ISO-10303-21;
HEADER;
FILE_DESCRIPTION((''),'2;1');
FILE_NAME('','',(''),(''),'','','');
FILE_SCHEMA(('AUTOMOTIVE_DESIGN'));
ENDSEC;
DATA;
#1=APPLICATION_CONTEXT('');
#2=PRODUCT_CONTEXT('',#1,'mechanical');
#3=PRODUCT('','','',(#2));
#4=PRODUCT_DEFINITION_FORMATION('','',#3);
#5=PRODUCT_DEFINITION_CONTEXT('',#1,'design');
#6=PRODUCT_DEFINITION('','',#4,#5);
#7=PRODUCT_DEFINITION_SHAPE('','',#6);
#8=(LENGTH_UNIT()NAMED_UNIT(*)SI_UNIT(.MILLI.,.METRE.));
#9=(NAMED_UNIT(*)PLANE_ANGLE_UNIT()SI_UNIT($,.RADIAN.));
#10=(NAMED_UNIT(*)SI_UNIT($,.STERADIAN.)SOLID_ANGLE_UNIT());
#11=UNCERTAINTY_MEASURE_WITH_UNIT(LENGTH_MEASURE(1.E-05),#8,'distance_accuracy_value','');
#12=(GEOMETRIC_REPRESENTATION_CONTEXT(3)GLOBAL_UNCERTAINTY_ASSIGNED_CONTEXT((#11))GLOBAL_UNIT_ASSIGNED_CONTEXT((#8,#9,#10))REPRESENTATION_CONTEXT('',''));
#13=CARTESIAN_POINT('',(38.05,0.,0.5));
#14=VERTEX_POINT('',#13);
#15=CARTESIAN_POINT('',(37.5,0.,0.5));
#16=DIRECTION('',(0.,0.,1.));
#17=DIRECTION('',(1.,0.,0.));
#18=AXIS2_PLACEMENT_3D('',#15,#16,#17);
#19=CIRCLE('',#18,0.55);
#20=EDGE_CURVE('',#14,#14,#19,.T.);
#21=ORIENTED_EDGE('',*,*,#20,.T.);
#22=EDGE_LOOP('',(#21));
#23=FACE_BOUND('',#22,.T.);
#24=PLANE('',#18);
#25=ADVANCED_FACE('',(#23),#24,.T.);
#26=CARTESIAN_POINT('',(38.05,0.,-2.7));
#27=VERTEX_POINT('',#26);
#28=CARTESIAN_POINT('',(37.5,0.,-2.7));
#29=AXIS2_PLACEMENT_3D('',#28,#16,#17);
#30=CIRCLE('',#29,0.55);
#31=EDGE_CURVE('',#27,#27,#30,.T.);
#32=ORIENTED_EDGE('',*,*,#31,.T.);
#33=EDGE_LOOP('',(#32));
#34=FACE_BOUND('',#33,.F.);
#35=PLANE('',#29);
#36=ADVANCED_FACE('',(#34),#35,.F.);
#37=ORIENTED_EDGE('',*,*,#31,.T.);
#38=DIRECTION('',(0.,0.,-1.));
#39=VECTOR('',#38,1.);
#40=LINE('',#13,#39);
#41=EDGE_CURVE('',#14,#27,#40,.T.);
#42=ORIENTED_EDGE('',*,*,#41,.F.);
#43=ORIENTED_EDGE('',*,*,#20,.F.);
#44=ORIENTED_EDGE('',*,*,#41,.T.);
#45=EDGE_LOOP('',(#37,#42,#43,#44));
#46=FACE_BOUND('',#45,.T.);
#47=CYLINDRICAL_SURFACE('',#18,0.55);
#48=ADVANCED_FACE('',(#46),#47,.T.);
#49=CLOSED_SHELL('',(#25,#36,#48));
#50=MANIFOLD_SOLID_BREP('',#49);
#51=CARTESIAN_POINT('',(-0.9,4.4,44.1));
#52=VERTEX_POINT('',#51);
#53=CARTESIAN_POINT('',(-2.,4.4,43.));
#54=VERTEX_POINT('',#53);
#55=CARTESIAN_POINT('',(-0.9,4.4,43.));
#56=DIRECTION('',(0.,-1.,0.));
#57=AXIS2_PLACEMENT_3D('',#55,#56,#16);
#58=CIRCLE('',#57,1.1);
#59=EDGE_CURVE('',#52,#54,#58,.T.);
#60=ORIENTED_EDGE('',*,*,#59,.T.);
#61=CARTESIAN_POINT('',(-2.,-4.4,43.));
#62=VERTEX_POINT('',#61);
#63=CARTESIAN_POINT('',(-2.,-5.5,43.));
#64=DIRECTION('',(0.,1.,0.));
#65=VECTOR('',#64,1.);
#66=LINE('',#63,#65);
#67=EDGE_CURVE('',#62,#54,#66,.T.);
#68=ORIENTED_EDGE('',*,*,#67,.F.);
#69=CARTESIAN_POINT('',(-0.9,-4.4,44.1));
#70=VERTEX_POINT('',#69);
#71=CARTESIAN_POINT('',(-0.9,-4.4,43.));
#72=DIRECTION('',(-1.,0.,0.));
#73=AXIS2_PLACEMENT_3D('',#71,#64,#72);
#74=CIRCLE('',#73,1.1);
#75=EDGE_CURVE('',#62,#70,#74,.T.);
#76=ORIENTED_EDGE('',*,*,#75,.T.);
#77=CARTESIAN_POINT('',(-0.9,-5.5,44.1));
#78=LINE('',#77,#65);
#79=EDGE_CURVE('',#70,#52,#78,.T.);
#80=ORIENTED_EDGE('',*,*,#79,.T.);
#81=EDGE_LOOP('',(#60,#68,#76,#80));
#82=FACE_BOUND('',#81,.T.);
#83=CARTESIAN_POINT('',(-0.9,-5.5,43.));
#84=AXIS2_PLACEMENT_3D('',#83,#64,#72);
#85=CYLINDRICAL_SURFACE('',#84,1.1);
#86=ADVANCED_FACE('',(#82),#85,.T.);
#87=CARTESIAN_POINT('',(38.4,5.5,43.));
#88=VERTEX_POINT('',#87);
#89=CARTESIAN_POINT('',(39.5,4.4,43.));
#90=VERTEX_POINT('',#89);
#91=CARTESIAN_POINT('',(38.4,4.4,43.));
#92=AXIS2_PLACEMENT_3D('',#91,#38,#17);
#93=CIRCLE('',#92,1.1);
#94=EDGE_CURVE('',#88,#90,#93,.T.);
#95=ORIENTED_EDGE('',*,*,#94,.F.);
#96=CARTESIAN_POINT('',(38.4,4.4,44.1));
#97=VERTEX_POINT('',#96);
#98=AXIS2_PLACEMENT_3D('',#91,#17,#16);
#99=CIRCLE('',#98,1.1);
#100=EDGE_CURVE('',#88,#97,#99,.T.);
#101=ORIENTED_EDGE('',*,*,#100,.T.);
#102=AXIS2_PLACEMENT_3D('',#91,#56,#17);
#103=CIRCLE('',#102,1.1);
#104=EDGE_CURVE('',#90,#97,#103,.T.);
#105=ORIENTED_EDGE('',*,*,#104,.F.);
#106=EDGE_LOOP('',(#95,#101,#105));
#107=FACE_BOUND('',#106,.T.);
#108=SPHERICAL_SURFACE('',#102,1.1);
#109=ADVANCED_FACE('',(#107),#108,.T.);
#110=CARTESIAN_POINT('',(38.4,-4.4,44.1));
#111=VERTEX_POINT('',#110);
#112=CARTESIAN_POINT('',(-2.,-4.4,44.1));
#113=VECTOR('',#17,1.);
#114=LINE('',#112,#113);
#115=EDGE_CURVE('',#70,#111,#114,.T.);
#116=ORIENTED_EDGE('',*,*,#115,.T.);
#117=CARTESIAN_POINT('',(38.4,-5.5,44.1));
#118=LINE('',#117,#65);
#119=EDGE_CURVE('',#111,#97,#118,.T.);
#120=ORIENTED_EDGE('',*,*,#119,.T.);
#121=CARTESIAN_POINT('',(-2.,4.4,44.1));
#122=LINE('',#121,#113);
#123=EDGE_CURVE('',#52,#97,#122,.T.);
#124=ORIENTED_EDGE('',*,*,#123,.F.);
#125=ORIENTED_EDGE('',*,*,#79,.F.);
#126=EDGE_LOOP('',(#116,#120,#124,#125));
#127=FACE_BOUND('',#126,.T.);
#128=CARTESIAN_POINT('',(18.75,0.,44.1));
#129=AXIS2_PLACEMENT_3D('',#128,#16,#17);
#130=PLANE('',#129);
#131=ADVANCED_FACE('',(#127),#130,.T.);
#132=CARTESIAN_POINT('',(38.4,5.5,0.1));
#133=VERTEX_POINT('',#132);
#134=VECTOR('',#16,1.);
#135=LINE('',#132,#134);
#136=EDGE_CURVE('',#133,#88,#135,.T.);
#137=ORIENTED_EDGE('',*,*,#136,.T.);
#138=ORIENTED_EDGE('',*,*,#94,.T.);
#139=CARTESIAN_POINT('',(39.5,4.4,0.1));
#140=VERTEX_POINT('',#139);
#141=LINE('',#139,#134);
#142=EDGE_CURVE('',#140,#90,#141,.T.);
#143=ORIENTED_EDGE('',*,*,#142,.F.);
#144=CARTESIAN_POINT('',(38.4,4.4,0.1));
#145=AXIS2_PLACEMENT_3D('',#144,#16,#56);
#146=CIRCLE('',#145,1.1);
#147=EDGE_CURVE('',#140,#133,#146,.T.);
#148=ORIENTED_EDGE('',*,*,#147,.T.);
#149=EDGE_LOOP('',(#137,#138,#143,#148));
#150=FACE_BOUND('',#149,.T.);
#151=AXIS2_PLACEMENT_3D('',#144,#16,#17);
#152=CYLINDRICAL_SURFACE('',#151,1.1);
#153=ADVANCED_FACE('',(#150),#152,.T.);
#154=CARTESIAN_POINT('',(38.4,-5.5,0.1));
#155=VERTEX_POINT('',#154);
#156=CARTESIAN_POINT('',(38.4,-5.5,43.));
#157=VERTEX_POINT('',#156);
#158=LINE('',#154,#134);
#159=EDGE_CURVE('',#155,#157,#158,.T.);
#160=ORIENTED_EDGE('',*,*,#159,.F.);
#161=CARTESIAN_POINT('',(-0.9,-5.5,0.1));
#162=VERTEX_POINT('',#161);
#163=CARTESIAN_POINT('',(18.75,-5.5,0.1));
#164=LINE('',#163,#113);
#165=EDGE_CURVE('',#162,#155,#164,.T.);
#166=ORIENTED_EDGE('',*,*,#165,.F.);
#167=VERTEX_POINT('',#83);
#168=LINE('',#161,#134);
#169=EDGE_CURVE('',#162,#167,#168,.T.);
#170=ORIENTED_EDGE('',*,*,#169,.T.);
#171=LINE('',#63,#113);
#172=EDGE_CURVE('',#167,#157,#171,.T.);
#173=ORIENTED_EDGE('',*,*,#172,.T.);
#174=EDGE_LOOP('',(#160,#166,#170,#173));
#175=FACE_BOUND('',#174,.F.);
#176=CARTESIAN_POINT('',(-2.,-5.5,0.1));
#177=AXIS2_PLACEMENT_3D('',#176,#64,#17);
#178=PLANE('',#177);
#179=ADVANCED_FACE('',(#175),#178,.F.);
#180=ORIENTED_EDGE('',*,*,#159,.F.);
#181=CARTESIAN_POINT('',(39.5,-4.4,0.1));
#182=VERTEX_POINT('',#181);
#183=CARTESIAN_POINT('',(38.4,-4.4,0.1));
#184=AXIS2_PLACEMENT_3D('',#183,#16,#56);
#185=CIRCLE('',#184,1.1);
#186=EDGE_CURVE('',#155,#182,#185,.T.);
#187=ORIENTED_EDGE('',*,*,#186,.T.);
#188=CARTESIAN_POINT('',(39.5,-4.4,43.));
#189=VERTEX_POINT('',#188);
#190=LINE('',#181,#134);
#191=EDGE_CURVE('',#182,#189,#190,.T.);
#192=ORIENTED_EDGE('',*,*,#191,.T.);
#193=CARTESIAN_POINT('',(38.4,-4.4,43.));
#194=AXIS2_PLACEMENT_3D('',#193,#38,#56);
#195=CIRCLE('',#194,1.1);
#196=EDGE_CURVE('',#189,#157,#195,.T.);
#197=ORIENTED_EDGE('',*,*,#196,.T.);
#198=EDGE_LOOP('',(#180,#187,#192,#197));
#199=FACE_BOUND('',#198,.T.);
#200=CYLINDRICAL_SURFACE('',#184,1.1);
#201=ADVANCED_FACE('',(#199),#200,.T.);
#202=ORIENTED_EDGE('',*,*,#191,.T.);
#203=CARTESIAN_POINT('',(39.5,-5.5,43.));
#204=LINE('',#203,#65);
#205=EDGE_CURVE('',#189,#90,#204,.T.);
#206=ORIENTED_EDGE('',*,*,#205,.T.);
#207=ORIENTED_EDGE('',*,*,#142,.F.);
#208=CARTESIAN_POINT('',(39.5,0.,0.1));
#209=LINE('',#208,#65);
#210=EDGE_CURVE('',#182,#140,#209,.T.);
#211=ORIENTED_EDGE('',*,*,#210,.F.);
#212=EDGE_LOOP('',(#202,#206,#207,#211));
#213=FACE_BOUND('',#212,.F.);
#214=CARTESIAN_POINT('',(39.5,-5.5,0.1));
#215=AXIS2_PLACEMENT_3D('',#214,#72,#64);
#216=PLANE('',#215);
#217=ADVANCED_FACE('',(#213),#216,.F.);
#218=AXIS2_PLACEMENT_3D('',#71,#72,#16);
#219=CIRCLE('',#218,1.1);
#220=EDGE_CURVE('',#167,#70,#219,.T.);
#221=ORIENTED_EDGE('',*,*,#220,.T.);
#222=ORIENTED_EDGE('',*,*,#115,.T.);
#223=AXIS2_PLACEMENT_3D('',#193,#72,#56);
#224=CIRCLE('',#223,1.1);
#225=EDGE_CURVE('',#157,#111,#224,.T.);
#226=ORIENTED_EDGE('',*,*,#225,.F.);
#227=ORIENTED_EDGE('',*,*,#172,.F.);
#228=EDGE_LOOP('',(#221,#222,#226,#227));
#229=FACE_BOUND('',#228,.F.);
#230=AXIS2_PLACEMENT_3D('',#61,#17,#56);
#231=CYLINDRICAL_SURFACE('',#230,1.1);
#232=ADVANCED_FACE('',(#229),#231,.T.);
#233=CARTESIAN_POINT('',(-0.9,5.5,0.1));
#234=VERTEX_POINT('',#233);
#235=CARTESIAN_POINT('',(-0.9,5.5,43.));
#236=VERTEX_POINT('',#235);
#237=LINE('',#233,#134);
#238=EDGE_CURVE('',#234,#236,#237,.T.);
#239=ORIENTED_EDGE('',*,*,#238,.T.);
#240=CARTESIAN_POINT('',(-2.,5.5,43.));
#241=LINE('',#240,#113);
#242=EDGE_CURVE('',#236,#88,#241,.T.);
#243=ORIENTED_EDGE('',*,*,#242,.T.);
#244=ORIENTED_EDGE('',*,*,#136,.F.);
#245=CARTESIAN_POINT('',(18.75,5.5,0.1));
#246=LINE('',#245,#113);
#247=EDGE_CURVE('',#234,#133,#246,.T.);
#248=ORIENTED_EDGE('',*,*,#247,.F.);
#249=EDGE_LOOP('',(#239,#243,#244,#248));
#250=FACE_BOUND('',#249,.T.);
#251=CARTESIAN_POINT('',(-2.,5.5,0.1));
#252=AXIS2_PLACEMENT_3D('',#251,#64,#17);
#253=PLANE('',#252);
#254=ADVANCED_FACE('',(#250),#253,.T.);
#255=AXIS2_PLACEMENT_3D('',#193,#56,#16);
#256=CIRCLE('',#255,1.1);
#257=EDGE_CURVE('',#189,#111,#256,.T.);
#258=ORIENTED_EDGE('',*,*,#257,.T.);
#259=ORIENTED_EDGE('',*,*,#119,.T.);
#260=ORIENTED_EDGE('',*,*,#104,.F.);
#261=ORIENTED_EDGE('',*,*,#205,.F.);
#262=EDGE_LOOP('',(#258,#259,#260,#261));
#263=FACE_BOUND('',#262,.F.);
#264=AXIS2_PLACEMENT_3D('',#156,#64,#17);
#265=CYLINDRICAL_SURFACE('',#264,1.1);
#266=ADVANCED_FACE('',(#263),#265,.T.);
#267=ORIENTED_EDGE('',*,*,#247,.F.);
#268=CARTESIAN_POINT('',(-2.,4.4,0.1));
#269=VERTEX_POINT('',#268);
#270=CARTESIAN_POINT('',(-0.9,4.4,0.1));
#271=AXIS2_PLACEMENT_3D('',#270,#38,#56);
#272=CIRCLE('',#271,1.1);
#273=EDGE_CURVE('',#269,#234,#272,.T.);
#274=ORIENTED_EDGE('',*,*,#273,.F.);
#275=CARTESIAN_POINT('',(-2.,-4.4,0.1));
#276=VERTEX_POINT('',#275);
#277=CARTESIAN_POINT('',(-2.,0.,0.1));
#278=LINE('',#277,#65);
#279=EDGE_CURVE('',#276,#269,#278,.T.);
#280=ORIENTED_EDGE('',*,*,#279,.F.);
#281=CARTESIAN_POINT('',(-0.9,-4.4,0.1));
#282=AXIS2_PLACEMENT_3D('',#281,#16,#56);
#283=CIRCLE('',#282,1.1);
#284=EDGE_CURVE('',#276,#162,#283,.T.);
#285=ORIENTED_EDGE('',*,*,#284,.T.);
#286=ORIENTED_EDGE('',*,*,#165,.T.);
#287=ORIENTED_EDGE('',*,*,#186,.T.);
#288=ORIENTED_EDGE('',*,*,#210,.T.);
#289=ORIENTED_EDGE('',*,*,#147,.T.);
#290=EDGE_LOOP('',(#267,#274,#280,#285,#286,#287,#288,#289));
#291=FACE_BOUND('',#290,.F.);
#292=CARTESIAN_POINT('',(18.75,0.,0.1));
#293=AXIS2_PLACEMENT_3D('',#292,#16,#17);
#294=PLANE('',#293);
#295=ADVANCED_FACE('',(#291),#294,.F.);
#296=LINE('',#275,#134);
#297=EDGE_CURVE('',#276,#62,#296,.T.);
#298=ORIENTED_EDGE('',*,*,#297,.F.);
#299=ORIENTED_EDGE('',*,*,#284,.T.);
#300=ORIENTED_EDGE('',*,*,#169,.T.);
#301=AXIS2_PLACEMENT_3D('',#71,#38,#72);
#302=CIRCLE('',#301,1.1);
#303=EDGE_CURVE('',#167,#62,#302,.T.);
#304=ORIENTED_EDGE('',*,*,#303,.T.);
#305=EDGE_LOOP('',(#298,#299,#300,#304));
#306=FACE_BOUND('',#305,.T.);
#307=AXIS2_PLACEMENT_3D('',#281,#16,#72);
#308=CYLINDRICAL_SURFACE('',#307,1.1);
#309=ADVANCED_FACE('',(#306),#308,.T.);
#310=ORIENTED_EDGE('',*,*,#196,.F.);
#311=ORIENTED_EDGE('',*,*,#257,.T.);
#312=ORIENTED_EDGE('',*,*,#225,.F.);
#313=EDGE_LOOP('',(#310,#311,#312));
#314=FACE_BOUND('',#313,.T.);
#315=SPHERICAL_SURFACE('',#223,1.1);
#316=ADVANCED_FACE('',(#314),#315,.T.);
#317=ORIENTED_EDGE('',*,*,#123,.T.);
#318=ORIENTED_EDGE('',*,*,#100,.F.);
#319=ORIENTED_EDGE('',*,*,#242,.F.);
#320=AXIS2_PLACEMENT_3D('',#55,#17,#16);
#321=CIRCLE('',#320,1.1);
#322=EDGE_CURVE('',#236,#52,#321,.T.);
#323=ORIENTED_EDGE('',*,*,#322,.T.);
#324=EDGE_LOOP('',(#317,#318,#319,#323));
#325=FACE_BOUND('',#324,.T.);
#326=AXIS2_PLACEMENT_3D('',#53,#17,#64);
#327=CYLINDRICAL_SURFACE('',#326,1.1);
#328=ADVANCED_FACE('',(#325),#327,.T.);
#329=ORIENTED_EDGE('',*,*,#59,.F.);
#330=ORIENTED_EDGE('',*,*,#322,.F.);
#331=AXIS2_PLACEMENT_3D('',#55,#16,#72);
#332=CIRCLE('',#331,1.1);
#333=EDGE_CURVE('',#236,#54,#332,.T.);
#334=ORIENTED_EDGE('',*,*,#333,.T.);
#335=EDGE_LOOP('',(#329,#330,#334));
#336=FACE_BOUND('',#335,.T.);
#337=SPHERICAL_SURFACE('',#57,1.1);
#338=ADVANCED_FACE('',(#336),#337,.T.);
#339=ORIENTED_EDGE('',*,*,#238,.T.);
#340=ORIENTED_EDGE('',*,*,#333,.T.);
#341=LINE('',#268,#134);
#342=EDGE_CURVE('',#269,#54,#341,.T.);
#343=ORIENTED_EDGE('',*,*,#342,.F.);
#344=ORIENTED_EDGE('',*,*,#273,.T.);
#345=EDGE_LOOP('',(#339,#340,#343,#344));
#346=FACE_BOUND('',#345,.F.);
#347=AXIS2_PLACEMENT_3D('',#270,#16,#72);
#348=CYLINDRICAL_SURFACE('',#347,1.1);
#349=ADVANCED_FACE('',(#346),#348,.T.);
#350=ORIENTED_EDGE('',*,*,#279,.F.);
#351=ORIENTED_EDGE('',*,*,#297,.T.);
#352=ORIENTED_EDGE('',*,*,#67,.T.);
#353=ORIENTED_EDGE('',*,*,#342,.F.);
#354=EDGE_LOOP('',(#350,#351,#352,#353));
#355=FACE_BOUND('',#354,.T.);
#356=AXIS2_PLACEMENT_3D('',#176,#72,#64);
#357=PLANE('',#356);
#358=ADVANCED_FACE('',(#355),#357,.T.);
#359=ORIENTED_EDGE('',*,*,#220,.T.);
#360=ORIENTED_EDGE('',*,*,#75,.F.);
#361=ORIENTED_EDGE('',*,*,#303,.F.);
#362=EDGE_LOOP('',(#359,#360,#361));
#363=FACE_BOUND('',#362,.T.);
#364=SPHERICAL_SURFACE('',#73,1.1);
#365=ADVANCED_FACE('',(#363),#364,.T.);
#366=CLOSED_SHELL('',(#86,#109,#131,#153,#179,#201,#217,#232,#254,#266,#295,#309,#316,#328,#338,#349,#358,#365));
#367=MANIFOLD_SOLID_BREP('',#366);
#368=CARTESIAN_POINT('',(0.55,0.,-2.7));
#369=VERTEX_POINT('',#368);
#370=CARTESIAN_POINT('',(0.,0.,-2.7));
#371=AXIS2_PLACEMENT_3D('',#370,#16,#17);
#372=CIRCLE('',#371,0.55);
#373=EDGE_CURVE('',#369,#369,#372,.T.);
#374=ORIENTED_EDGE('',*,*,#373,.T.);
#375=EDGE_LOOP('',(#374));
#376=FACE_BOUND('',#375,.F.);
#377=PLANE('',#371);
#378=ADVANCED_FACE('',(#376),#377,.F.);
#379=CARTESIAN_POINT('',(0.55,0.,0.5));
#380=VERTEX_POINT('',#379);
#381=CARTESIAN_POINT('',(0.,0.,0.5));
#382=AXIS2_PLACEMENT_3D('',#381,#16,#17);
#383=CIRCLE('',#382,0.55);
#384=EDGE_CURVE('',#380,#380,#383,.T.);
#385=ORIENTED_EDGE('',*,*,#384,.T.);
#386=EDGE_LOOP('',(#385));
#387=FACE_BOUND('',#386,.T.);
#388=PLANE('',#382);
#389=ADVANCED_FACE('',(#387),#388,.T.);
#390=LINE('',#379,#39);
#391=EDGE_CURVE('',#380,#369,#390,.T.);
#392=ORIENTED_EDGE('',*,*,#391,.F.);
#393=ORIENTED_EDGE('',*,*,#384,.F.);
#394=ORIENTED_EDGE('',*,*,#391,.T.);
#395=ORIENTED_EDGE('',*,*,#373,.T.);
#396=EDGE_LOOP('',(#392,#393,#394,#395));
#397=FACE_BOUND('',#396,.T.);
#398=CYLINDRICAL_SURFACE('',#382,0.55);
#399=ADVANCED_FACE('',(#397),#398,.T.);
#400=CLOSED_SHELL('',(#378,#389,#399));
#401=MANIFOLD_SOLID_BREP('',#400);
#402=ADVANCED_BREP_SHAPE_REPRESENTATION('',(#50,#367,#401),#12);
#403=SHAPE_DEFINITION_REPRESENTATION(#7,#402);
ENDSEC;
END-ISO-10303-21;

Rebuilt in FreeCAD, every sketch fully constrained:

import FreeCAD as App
import Part
import Sketcher

V = App.Vector
Q = App.Units.Quantity


def edges_at(feature, points):
    """Names of the edges that pass closest to the given points."""
    edges = feature.Shape.Edges
    near = lambda p: min(range(len(edges)), key=lambda i: edges[i].distToShape(Part.Vertex(*p))[0])
    return sorted({f"Edge{near(p) + 1}" for p in points})

doc = App.newDocument("Part")
body = doc.addObject("PartDesign::Body", "Body")

sketch1 = body.newObject("Sketcher::SketchObject", "Sketch")
sketch1.AttachmentSupport = (doc.getObject("XY_Plane"), [""])
sketch1.MapMode = "FlatFace"
sketch1.AttachmentOffset = App.Placement(V(0, 0, 0.1), App.Rotation())
sketch1.addGeometry([
    Part.LineSegment(V(-2, 6, 0), V(-2, -6, 0)),
    Part.LineSegment(V(-2, -6, 0), V(40, -6, 0)),
    Part.LineSegment(V(40, -6, 0), V(40, 6, 0)),
    Part.LineSegment(V(40, 6, 0), V(-2, 6, 0)),
], False)
sketch1.addConstraint([
    Sketcher.Constraint("Coincident", 0, 2, 1, 1),
    Sketcher.Constraint("Coincident", 1, 2, 2, 1),
    Sketcher.Constraint("Coincident", 2, 2, 3, 1),
    Sketcher.Constraint("Coincident", 3, 2, 0, 1),
    Sketcher.Constraint("Vertical", 0),
    Sketcher.Constraint("Horizontal", 1),
    Sketcher.Constraint("Vertical", 2),
    Sketcher.Constraint("Horizontal", 3),
    Sketcher.Constraint("DistanceY", 0, 2, 0, 1, Q("11 mm")),
    Sketcher.Constraint("DistanceX", 1, 1, 1, 2, Q("41.5 mm")),
    Sketcher.Constraint("DistanceX", 0, 2, -1, 1, Q("2 mm")),
    Sketcher.Constraint("DistanceY", 0, 2, -1, 1, Q("5.5 mm")),
])
pad1 = body.newObject("PartDesign::Pad", "Pad")
pad1.Profile = sketch1
pad1.Length = 44
doc.recompute()

fillet = body.newObject("PartDesign::Fillet", "Fillet")
fillet.Base = (pad1, edges_at(pad1, [
    (-2, 0, 44.1),
    (-2, -5.5, 22.1),
    (18.75, -5.5, 44.1),
    (39.5, -5.5, 22.1),
    (39.5, 0, 44.1),
    (39.5, 5.5, 22.1),
    (18.75, 5.5, 44.1),
    (-2, 5.5, 22.1),
]))
fillet.Radius = 1.1
body2 = doc.addObject("PartDesign::Body", "Body001")
body2.AllowCompound = True

sketch2 = body2.newObject("Sketcher::SketchObject", "Sketch001")
sketch2.AttachmentSupport = (doc.getObject("XY_Plane001"), [""])
sketch2.MapMode = "FlatFace"
sketch2.AttachmentOffset = App.Placement(V(0, 0, 0.5), App.Rotation())
sketch2.addGeometry([
    Part.Circle(V(0, 0, 0), V(0, 0, 1), 0.6),
    Part.Circle(V(37.5, 0, 0), V(0, 0, 1), 0.6),
], False)
sketch2.addConstraint([
    Sketcher.Constraint("Coincident", 0, 3, -1, 1),
    Sketcher.Constraint("Equal", 0, 1),
    Sketcher.Constraint("PointOnObject", 1, 3, -1),
    Sketcher.Constraint("Diameter", 0, Q("1.1 mm")),
    Sketcher.Constraint("DistanceX", -1, 1, 1, 3, Q("37.5 mm")),
])
pad2 = body2.newObject("PartDesign::Pad", "Pad001")
pad2.Profile = sketch2
pad2.Length = 3.2
pad2.Reversed = True

doc.recompute()
